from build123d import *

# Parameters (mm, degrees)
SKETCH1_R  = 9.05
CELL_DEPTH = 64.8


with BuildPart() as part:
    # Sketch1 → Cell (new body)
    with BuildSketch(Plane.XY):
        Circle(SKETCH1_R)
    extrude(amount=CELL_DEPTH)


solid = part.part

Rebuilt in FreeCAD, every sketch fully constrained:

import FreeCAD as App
import Part
import Sketcher

V = App.Vector
Q = App.Units.Quantity

doc = App.newDocument("Part")
params = doc.addObject("Spreadsheet::Sheet", "Params")
for row, (alias, value) in enumerate([
    ("sketch1_diameter", "18.1 mm"),
    ("pad1_length", "64.8 mm"),
], start=1):
    params.set(f"A{row}", alias)
    params.set(f"B{row}", "=" + value)
    params.setAlias(f"B{row}", alias)

body = doc.addObject("PartDesign::Body", "Body")

# Sketch on XY plane
sketch1 = body.newObject("Sketcher::SketchObject", "Sketch")
sketch1.AttachmentSupport = (doc.getObject("XY_Plane"), [""])
sketch1.MapMode = "FlatFace"
sketch1.addGeometry(Part.Circle(V(0, 0, 0), V(0, 0, 1), 9), False)
sketch1.addConstraint([
    Sketcher.Constraint("Coincident", 0, 3, -1, 1),
    Sketcher.Constraint("Diameter", 0, Q("18.1 mm")),
])
sketch1.setExpression("Constraints[1]", "Params.sketch1_diameter")
pad1 = body.newObject("PartDesign::Pad", "Pad")
pad1.Profile = sketch1
pad1.setExpression("Length", "Params.pad1_length")

doc.recompute()
